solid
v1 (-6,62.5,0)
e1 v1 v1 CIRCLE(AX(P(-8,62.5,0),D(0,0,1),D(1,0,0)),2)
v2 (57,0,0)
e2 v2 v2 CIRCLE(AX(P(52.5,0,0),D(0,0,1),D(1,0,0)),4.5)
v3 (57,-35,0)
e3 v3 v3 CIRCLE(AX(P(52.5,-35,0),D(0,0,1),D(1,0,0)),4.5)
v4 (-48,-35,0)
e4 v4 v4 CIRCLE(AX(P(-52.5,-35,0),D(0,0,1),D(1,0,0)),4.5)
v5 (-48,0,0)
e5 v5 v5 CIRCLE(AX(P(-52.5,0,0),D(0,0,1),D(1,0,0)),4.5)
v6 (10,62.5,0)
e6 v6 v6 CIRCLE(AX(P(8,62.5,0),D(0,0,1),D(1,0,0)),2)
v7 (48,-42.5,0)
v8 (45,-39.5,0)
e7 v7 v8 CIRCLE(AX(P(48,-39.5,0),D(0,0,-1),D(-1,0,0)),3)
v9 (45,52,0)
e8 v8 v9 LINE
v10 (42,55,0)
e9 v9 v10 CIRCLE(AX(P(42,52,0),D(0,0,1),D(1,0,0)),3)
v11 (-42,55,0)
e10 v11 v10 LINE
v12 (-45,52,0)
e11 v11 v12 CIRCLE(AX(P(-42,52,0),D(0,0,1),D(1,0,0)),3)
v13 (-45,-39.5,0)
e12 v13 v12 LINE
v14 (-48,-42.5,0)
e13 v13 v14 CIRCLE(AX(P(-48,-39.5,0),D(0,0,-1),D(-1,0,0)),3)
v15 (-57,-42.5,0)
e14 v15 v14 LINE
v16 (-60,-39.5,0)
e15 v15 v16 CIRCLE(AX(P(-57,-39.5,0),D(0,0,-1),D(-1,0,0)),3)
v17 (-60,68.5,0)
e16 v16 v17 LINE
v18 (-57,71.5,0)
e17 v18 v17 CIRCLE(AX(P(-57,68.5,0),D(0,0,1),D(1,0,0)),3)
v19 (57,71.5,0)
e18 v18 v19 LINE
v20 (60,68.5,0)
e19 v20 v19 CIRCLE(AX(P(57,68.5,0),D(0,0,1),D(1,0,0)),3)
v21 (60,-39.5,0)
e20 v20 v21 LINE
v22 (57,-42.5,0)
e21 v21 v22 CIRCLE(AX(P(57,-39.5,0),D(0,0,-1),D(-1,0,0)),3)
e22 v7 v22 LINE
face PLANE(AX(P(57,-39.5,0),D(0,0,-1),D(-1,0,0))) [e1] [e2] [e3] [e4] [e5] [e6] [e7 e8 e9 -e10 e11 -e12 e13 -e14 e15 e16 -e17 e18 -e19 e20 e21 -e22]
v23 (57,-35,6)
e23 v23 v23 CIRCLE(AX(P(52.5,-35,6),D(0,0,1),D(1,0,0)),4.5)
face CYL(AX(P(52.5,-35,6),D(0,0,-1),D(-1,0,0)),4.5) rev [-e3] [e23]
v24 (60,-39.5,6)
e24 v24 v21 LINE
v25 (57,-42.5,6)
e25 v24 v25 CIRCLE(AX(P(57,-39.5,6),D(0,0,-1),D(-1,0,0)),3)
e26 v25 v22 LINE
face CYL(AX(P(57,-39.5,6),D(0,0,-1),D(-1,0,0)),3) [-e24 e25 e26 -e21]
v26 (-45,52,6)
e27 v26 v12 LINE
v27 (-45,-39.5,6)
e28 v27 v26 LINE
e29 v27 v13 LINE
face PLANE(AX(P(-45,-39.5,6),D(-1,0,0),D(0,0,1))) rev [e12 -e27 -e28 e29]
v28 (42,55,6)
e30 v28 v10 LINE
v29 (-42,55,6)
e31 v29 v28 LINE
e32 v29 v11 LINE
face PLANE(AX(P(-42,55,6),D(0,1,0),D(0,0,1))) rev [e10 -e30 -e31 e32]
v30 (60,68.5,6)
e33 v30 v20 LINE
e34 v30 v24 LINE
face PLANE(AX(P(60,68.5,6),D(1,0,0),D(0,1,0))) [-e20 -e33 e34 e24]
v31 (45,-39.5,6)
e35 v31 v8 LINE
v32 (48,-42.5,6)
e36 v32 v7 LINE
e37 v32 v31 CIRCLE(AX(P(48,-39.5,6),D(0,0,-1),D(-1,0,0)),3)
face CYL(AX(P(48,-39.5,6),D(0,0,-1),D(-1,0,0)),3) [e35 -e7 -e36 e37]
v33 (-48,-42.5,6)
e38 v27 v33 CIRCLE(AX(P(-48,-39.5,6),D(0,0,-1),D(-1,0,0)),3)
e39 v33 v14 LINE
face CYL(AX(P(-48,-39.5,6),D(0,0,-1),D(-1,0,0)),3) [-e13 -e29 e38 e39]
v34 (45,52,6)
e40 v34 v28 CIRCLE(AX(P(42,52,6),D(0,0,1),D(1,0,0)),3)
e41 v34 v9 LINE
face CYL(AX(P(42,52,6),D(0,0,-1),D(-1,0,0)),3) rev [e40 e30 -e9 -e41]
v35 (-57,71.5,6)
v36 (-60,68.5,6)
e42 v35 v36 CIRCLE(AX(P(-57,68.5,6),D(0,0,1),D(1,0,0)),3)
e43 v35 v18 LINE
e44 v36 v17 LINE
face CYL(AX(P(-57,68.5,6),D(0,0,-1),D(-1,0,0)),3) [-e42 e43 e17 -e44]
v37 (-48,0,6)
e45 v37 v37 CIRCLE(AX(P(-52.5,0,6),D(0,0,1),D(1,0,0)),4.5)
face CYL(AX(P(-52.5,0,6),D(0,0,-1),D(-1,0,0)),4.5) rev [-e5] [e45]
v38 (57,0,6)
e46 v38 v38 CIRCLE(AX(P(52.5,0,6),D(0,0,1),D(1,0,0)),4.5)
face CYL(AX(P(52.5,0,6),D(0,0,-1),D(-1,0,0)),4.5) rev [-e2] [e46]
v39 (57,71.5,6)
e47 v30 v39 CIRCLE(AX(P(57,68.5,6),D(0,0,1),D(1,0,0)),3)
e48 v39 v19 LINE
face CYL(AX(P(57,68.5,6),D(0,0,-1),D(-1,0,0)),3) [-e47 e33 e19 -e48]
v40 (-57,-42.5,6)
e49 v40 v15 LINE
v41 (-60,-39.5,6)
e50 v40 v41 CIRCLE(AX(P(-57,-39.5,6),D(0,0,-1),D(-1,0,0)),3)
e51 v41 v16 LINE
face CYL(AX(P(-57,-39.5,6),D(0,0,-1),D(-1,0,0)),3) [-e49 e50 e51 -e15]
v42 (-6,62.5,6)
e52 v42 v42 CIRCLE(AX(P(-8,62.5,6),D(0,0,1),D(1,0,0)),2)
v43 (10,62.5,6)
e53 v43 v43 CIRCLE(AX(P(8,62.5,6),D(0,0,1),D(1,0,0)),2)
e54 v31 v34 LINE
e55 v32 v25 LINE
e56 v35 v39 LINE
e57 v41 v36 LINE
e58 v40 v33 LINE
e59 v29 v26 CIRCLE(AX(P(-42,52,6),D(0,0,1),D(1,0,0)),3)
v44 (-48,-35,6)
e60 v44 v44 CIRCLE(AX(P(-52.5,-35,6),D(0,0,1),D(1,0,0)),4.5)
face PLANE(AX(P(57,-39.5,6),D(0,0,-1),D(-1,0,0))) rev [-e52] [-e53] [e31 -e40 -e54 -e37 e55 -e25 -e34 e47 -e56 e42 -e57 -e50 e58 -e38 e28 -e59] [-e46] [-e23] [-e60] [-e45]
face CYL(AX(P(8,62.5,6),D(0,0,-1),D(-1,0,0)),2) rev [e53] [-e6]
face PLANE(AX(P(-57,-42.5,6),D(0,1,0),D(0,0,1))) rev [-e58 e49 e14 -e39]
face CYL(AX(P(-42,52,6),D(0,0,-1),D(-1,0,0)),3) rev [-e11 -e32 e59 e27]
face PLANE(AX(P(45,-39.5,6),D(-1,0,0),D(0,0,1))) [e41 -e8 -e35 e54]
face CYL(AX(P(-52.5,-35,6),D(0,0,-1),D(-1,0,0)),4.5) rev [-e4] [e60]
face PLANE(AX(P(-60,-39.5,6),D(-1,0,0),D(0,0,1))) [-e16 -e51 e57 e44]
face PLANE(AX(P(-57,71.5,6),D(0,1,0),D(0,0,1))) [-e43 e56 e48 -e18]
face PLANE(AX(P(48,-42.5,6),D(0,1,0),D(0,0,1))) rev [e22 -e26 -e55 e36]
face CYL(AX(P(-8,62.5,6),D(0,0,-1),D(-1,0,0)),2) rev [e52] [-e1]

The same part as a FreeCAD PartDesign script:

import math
import FreeCAD as App
import Part
import Sketcher
from FreeCAD import Vector
Q = App.Units.Quantity

doc = App.newDocument("Part")
body = doc.addObject("PartDesign::Body", "Body")

sketch1 = body.newObject("Sketcher::SketchObject", "Sketch")
sketch1.AttachmentSupport = (doc.getObject("XY_Plane"), [""])
sketch1.MapMode = "FlatFace"
sketch1.addGeometry(Part.LineSegment(Vector(-45, -39.5, 0), Vector(-45, 52, 0)), False)
sketch1.addGeometry(Part.ArcOfCircle(Part.Circle(Vector(-42, 52, 0), Vector(0, 0, 1), 3), math.radians(90), math.radians(180)), False)
sketch1.addGeometry(Part.LineSegment(Vector(-42, 55, 0), Vector(42, 55, 0)), False)
sketch1.addGeometry(Part.ArcOfCircle(Part.Circle(Vector(42, 52, 0), Vector(0, 0, 1), 3), math.radians(0), math.radians(90)), False)
sketch1.addGeometry(Part.LineSegment(Vector(45, 52, 0), Vector(45, -39.5, 0)), False)
sketch1.addGeometry(Part.ArcOfCircle(Part.Circle(Vector(48, -39.5, 0), Vector(0, 0, 1), 3), math.radians(180), math.radians(270)), False)
sketch1.addGeometry(Part.LineSegment(Vector(48, -42.5, 0), Vector(57, -42.5, 0)), False)
sketch1.addGeometry(Part.ArcOfCircle(Part.Circle(Vector(57, -39.5, 0), Vector(0, 0, 1), 3), math.radians(-90), math.radians(0)), False)
sketch1.addGeometry(Part.LineSegment(Vector(60, -39.5, 0), Vector(60, 68.5, 0)), False)
sketch1.addGeometry(Part.ArcOfCircle(Part.Circle(Vector(57, 68.5, 0), Vector(0, 0, 1), 3), math.radians(0), math.radians(90)), False)
sketch1.addGeometry(Part.LineSegment(Vector(57, 71.5, 0), Vector(-57, 71.5, 0)), False)
sketch1.addGeometry(Part.ArcOfCircle(Part.Circle(Vector(-57, 68.5, 0), Vector(0, 0, 1), 3), math.radians(90), math.radians(180)), False)
sketch1.addGeometry(Part.LineSegment(Vector(-60, 68.5, 0), Vector(-60, -39.5, 0)), False)
sketch1.addGeometry(Part.ArcOfCircle(Part.Circle(Vector(-57, -39.5, 0), Vector(0, 0, 1), 3), math.radians(180), math.radians(270)), False)
sketch1.addGeometry(Part.LineSegment(Vector(-57, -42.5, 0), Vector(-48, -42.5, 0)), False)
sketch1.addGeometry(Part.ArcOfCircle(Part.Circle(Vector(-48, -39.5, 0), Vector(0, 0, 1), 3), math.radians(-90), math.radians(0)), False)
sketch1.addGeometry(Part.Circle(Vector(-52.5, -35, 0), Vector(0, 0, 1), 4.5), False)
sketch1.addGeometry(Part.Circle(Vector(-52.5, 0, 0), Vector(0, 0, 1), 4.5), False)
sketch1.addGeometry(Part.Circle(Vector(52.5, -35, 0), Vector(0, 0, 1), 4.5), False)
sketch1.addGeometry(Part.Circle(Vector(52.5, 0, 0), Vector(0, 0, 1), 4.5), False)
sketch1.addGeometry(Part.Circle(Vector(-8, 62.5, 0), Vector(0, 0, 1), 2), False)
sketch1.addGeometry(Part.Circle(Vector(8, 62.5, 0), Vector(0, 0, 1), 2), False)
sketch1.addConstraint(Sketcher.Constraint("Tangent", 0, 2, 1, 2))
sketch1.addConstraint(Sketcher.Constraint("Tangent", 1, 1, 2, 1))
sketch1.addConstraint(Sketcher.Constraint("Tangent", 2, 2, 3, 2))
sketch1.addConstraint(Sketcher.Constraint("Tangent", 3, 1, 4, 1))
sketch1.addConstraint(Sketcher.Constraint("Tangent", 4, 2, 5, 1))
sketch1.addConstraint(Sketcher.Constraint("Tangent", 5, 2, 6, 1))
sketch1.addConstraint(Sketcher.Constraint("Tangent", 6, 2, 7, 1))
sketch1.addConstraint(Sketcher.Constraint("Tangent", 7, 2, 8, 1))
sketch1.addConstraint(Sketcher.Constraint("Tangent", 8, 2, 9, 1))
sketch1.addConstraint(Sketcher.Constraint("Tangent", 9, 2, 10, 1))
sketch1.addConstraint(Sketcher.Constraint("Tangent", 10, 2, 11, 1))
sketch1.addConstraint(Sketcher.Constraint("Tangent", 11, 2, 12, 1))
sketch1.addConstraint(Sketcher.Constraint("Tangent", 12, 2, 13, 1))
sketch1.addConstraint(Sketcher.Constraint("Tangent", 13, 2, 14, 1))
sketch1.addConstraint(Sketcher.Constraint("Tangent", 14, 2, 15, 1))
sketch1.addConstraint(Sketcher.Constraint("Tangent", 15, 2, 0, 1))
sketch1.addConstraint(Sketcher.Constraint("Vertical", 0))
sketch1.addConstraint(Sketcher.Constraint("Horizontal", 2))
sketch1.addConstraint(Sketcher.Constraint("Vertical", 4))
sketch1.addConstraint(Sketcher.Constraint("Horizontal", 6))
sketch1.addConstraint(Sketcher.Constraint("Vertical", 8))
sketch1.addConstraint(Sketcher.Constraint("Horizontal", 10))
sketch1.addConstraint(Sketcher.Constraint("Vertical", 12))
sketch1.addConstraint(Sketcher.Constraint("Horizontal", 14))
sketch1.addConstraint(Sketcher.Constraint("Equal", 1, 3))
sketch1.addConstraint(Sketcher.Constraint("Equal", 3, 5))
sketch1.addConstraint(Sketcher.Constraint("Equal", 5, 7))
sketch1.addConstraint(Sketcher.Constraint("Equal", 7, 9))
sketch1.addConstraint(Sketcher.Constraint("Equal", 9, 11))
sketch1.addConstraint(Sketcher.Constraint("Equal", 11, 13))
sketch1.addConstraint(Sketcher.Constraint("Equal", 13, 15))
sketch1.addConstraint(Sketcher.Constraint("Equal", 16, 17))
sketch1.addConstraint(Sketcher.Constraint("Equal", 17, 18))
sketch1.addConstraint(Sketcher.Constraint("Equal", 18, 19))
sketch1.addConstraint(Sketcher.Constraint("Equal", 20, 21))
sketch1.addConstraint(Sketcher.Constraint("Symmetric", 17, 3, 19, 3, -1, 1))
sketch1.addConstraint(Sketcher.Constraint("Symmetric", 7, 3, 13, 3, -2))
sketch1.addConstraint(Sketcher.Constraint("Symmetric", 16, 3, 18, 3, -2))
sketch1.addConstraint(Sketcher.Constraint("Symmetric", 20, 3, 21, 3, -2))
sketch1.addConstraint(Sketcher.Constraint("PointOnObject", 17, 3, -1))
sketch1.addConstraint(Sketcher.Constraint("Vertical", 16, 3, 17, 3))
sketch1.addConstraint(Sketcher.Constraint("Equal", 6, 14))
sketch1.addConstraint(Sketcher.Constraint("Diameter", 16, Q("9 mm")))
sketch1.addConstraint(Sketcher.Constraint("Diameter", 20, Q("4 mm")))
sketch1.addConstraint(Sketcher.Constraint("Radius", 1, Q("3 mm")))
sketch1.addConstraint(Sketcher.Constraint("DistanceX", 2, 1, 2, 2, Q("84 mm")))
sketch1.addConstraint(Sketcher.Constraint("DistanceX", 6, 1, 6, 2, Q("9 mm")))
sketch1.addConstraint(Sketcher.Constraint("DistanceY", 8, 1, 8, 2, Q("108 mm")))
sketch1.addConstraint(Sketcher.Constraint("DistanceY", 0, 1, 0, 2, Q("91.5 mm")))
sketch1.addConstraint(Sketcher.Constraint("DistanceY", -1, 1, 1, 3, Q("52 mm")))
sketch1.addConstraint(Sketcher.Constraint("DistanceY", 16, 3, -1, 1, Q("35 mm")))
sketch1.addConstraint(Sketcher.Constraint("DistanceX", 20, 3, -1, 1, Q("8 mm")))
sketch1.addConstraint(Sketcher.Constraint("DistanceY", 20, 3, 11, 3, Q("6 mm")))
sketch1.addConstraint(Sketcher.Constraint("DistanceX", 16, 3, -1, 1, Q("52.5 mm")))
pad1 = body.newObject("PartDesign::Pad", "Pad")
pad1.Profile = sketch1
pad1.Length = 6

doc.recompute()
